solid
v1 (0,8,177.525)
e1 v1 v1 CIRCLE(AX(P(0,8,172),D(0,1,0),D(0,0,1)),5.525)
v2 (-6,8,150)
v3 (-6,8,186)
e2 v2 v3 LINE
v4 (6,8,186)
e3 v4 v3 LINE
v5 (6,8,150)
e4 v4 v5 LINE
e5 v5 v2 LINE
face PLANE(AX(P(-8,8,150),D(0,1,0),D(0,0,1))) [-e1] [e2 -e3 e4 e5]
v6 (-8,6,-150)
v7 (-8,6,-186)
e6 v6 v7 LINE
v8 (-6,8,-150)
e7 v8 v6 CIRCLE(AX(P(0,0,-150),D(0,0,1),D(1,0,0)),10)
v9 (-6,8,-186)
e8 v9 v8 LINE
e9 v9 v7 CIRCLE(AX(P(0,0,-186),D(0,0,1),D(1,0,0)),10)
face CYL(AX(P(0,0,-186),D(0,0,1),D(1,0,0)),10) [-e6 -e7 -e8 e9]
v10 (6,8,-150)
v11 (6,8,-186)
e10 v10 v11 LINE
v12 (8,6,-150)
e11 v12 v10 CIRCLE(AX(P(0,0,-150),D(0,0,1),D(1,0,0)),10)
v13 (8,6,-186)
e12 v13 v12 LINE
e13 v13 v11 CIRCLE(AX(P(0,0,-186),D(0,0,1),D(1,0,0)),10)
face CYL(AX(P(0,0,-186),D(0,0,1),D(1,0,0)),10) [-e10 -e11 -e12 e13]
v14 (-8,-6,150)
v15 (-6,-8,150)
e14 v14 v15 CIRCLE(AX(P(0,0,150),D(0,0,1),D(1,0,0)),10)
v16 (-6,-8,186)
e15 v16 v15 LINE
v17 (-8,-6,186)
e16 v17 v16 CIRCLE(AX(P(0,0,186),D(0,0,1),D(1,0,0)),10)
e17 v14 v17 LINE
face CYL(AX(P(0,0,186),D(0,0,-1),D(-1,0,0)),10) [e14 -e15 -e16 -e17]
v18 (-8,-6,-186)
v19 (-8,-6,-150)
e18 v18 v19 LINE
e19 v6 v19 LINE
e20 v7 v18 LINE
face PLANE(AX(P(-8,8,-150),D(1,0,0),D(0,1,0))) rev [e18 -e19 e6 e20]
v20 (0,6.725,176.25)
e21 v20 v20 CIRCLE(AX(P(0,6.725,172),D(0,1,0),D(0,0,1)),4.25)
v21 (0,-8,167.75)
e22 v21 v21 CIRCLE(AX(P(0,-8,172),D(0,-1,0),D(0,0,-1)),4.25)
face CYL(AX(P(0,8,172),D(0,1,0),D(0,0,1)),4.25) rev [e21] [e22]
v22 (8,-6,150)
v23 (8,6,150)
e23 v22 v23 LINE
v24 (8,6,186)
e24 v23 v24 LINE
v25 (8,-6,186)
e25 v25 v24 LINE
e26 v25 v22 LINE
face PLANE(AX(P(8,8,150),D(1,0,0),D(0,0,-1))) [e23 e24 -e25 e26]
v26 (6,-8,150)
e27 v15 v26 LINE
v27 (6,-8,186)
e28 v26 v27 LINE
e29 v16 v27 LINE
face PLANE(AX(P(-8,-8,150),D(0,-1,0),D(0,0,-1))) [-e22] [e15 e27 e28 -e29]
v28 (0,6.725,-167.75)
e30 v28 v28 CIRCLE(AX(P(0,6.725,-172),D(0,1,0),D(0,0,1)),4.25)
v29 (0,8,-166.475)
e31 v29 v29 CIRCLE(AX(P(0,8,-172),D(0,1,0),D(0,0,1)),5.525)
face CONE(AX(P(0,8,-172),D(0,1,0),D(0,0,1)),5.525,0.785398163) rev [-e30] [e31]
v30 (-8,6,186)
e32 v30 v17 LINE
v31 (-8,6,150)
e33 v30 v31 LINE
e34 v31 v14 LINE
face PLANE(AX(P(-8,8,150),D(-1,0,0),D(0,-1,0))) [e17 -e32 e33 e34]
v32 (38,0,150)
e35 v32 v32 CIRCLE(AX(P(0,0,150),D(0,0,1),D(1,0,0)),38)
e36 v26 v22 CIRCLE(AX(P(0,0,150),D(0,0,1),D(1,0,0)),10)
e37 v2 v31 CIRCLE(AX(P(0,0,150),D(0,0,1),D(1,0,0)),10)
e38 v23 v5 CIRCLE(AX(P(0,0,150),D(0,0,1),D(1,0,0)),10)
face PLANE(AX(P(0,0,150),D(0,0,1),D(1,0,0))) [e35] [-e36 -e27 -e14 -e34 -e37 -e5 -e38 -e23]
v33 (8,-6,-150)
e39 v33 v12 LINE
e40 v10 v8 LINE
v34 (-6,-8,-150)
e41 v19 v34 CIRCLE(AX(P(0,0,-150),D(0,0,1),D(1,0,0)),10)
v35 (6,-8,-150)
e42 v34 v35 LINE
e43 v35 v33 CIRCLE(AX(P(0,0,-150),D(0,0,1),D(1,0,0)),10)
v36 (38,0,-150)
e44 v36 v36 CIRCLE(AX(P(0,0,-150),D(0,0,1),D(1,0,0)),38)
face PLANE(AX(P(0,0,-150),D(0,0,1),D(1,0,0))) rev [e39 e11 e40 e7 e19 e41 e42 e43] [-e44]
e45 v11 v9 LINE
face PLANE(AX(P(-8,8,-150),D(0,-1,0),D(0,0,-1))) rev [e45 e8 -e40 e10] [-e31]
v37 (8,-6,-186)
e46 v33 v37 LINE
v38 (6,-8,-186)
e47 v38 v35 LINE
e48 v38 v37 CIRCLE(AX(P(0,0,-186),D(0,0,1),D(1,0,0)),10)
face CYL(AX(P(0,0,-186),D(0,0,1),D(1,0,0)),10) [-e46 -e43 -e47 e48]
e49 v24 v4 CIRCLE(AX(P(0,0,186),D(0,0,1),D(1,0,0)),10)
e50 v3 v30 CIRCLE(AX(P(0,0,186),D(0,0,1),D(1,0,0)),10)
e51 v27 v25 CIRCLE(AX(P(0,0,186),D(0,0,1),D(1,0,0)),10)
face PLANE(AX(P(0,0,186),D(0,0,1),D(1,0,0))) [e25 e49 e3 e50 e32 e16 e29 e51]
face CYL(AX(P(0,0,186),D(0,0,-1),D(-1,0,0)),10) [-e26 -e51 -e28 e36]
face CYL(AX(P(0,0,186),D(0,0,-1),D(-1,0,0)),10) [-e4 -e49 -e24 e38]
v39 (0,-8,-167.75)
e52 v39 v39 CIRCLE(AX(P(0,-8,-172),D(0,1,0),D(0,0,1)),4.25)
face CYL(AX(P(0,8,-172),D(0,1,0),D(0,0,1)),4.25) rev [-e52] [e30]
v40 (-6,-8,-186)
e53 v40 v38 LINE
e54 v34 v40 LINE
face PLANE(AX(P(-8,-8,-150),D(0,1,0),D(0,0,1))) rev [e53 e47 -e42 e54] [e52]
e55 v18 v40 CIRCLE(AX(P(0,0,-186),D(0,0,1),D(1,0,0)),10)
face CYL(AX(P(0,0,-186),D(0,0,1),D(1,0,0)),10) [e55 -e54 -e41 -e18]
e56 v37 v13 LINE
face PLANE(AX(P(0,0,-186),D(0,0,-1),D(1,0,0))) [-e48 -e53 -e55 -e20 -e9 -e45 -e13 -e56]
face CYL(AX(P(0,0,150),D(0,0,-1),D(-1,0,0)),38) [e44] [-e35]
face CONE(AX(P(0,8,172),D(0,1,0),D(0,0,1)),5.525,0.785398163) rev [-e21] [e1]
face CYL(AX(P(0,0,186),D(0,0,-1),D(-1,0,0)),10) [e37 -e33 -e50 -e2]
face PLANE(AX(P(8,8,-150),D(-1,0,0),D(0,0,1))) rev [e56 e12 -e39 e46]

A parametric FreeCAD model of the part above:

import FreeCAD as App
import Part
import Sketcher

V = App.Vector
Q = App.Units.Quantity

doc = App.newDocument("Part")
body = doc.addObject("PartDesign::Body", "Body")

# Sketch on XY plane
sketch1 = body.newObject("Sketcher::SketchObject", "Sketch")
sketch1.AttachmentSupport = (doc.getObject("XY_Plane"), [""])
sketch1.MapMode = "FlatFace"
sketch1.addGeometry(Part.Circle(V(0, 0, 0), V(0, 0, 1), 38), False)
sketch1.addConstraint([
    Sketcher.Constraint("Coincident", 0, 3, -1, 1),
    Sketcher.Constraint("Diameter", 0, Q("76 mm")),
])
pad1 = body.newObject("PartDesign::Pad", "Pad")
pad1.Profile = sketch1
pad1.Length = 300
pad1.Midplane = True

# Sketch on XY plane
sketch2 = body.newObject("Sketcher::SketchObject", "Sketch001")
sketch2.AttachmentSupport = (doc.getObject("XY_Plane"), [""])
sketch2.MapMode = "FlatFace"
sketch2.AttachmentOffset = App.Placement(V(0, 0, 150), App.Rotation())
sketch2.addGeometry(Part.Circle(V(0, 0, 0), V(0, 0, 1), 10), False)
sketch2.addConstraint([
    Sketcher.Constraint("Coincident", 0, 3, -1, 1),
    Sketcher.Constraint("Diameter", 0, Q("20 mm")),
])
pad2 = body.newObject("PartDesign::Pad", "Pad001")
pad2.Profile = sketch2
pad2.Length = 36

# Sketch on XY plane
sketch3 = body.newObject("Sketcher::SketchObject", "Sketch002")
sketch3.AttachmentSupport = (doc.getObject("XY_Plane"), [""])
sketch3.MapMode = "FlatFace"
sketch3.AttachmentOffset = App.Placement(V(0, 0, 186), App.Rotation())
sketch3.addGeometry([
    Part.LineSegment(V(-74, 74, 0), V(-74, -74, 0)),  # 0
    Part.LineSegment(V(-74, -74, 0), V(74, -74, 0)),  # 1
    Part.LineSegment(V(74, -74, 0), V(74, 74, 0)),  # 2
    Part.LineSegment(V(74, 74, 0), V(-74, 74, 0)),  # 3
    Part.LineSegment(V(8, -8, 0), V(-8, -8, 0)),  # 4
    Part.LineSegment(V(-8, -8, 0), V(-8, 8, 0)),  # 5
    Part.LineSegment(V(-8, 8, 0), V(8, 8, 0)),  # 6
    Part.LineSegment(V(8, 8, 0), V(8, -8, 0)),  # 7
], False)
sketch3.addConstraint([
    Sketcher.Constraint("Coincident", 0, 2, 1, 1),
    Sketcher.Constraint("Coincident", 1, 2, 2, 1),
    Sketcher.Constraint("Coincident", 2, 2, 3, 1),
    Sketcher.Constraint("Coincident", 3, 2, 0, 1),
    Sketcher.Constraint("Coincident", 4, 2, 5, 1),
    Sketcher.Constraint("Coincident", 5, 2, 6, 1),
    Sketcher.Constraint("Coincident", 6, 2, 7, 1),
    Sketcher.Constraint("Coincident", 7, 2, 4, 1),
    Sketcher.Constraint("Vertical", 0),
    Sketcher.Constraint("Horizontal", 1),
    Sketcher.Constraint("Vertical", 2),
    Sketcher.Constraint("Horizontal", 3),
    Sketcher.Constraint("Horizontal", 4),
    Sketcher.Constraint("Vertical", 5),
    Sketcher.Constraint("Horizontal", 6),
    Sketcher.Constraint("Vertical", 7),
    Sketcher.Constraint("Symmetric", 0, 2, 2, 2, -1, 1),
    Sketcher.Constraint("Symmetric", 4, 2, 6, 2, -1, 1),
    Sketcher.Constraint("Equal", 3, 0),
    Sketcher.Constraint("Equal", 6, 5),
    Sketcher.Constraint("DistanceX", 4, 2, 4, 1, Q("16 mm")),
    Sketcher.Constraint("DistanceX", 1, 1, 1, 2, Q("148.554 mm")),
])
pocket1 = body.newObject("PartDesign::Pocket", "Pocket")
pocket1.Profile = sketch3
pocket1.Length = 36

# Sketch on YZ plane
sketch4 = body.newObject("Sketcher::SketchObject", "Sketch003")
sketch4.AttachmentSupport = (doc.getObject("YZ_Plane"), [""])
sketch4.MapMode = "FlatFace"
sketch4.addGeometry([
    Part.LineSegment(V(-19.1, 172, 0), V(8, 172, 0)),  # 0
    Part.LineSegment(V(8, 172, 0), V(8, 177.5, 0)),  # 1
    Part.LineSegment(V(8, 177.5, 0), V(6.7, 176.2, 0)),  # 2
    Part.LineSegment(V(6.7, 176.2, 0), V(-16.5, 176.2, 0)),  # 3
    Part.LineSegment(V(-16.5, 176.2, 0), V(-19.1, 172, 0)),  # 4
], False)
sketch4.addGeometry(Part.LineSegment(V(8, 172, 0), V(-19.1, 172, 0)), True)  # axis
sketch4.addConstraint([
    Sketcher.Constraint("Coincident", 0, 2, 1, 1),
    Sketcher.Constraint("Coincident", 1, 2, 2, 1),
    Sketcher.Constraint("Coincident", 2, 2, 3, 1),
    Sketcher.Constraint("Coincident", 3, 2, 4, 1),
    Sketcher.Constraint("Coincident", 4, 2, 0, 1),
    Sketcher.Constraint("Horizontal", 0),
    Sketcher.Constraint("Vertical", 1),
    Sketcher.Constraint("Horizontal", 3),
    Sketcher.Constraint("Horizontal", 5),
    Sketcher.Constraint("Coincident", 5, 1, 0, 2),
    Sketcher.Constraint("Equal", 0, 5),
    Sketcher.Constraint("Angle", 2, Q("-135 deg")),
    Sketcher.Constraint("Angle", 4, Q("-121 deg")),
    Sketcher.Constraint("DistanceX", -1, 1, 0, 2, Q("8 mm")),
    Sketcher.Constraint("DistanceY", -1, 1, 0, 2, Q("172 mm")),
    Sketcher.Constraint("DistanceX", 3, 2, -1, 1, Q("16.5 mm")),
    Sketcher.Constraint("DistanceX", 3, 2, 3, 1, Q("23.225 mm")),
    Sketcher.Constraint("DistanceY", 1, 1, 1, 2, Q("5.525 mm")),
])
groove = body.newObject("PartDesign::Groove", "Groove")
groove.Profile = sketch4
groove.ReferenceAxis = (sketch4, ["Axis0"])
groove.Angle = 360
doc.recompute()

mirrored = body.newObject("PartDesign::Mirrored", "Mirrored")
mirrored.Originals = [pad2, pocket1, groove]
mirrored.MirrorPlane = (doc.getObject("XY_Plane"), [""])
body.Tip = mirrored

doc.recompute()
